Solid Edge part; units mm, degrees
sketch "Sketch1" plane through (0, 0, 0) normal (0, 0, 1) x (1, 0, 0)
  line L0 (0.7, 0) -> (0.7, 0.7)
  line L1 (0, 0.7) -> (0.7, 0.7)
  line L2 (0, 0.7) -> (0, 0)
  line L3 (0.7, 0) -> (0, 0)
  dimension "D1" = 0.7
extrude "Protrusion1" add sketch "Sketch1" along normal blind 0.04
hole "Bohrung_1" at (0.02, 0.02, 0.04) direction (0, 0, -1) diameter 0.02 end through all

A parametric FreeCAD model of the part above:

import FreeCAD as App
import Part
import Sketcher
from FreeCAD import Vector

doc = App.newDocument("Part")
params = doc.addObject("Spreadsheet::Sheet", "Params")
for row, (alias, value) in enumerate([
    ("sketch1_width", "0.7 mm"),
    ("pad1_length", "0.04 mm"),
    ("sketch2_diameter", "0.02 mm"),
    ("hole_diameter", "0.02 mm"),
], start=1):
    params.set(f"A{row}", alias)
    params.set(f"B{row}", "=" + value)
    params.setAlias(f"B{row}", alias)

body = doc.addObject("PartDesign::Body", "Body")

# Sketch on XY plane
sketch1 = body.newObject("Sketcher::SketchObject", "Sketch")
sketch1.AttachmentSupport = (doc.getObject("XY_Plane"), [""])
sketch1.MapMode = "FlatFace"
sketch1.addGeometry(Part.LineSegment(Vector(0, 0, 0), Vector(0.7, 0, 0)), False)
sketch1.addGeometry(Part.LineSegment(Vector(0.7, 0, 0), Vector(0.7, 0.7, 0)), False)
sketch1.addGeometry(Part.LineSegment(Vector(0.7, 0.7, 0), Vector(0, 0.7, 0)), False)
sketch1.addGeometry(Part.LineSegment(Vector(0, 0.7, 0), Vector(0, 0, 0)), False)
sketch1.addConstraint(Sketcher.Constraint("Coincident", 0, 2, 1, 1))
sketch1.addConstraint(Sketcher.Constraint("Coincident", 1, 2, 2, 1))
sketch1.addConstraint(Sketcher.Constraint("Coincident", 2, 2, 3, 1))
sketch1.addConstraint(Sketcher.Constraint("Coincident", 3, 2, 0, 1))
sketch1.addConstraint(Sketcher.Constraint("Horizontal", 0))
sketch1.addConstraint(Sketcher.Constraint("Vertical", 1))
sketch1.addConstraint(Sketcher.Constraint("Horizontal", 2))
sketch1.addConstraint(Sketcher.Constraint("Vertical", 3))
sketch1.addConstraint(Sketcher.Constraint("Coincident", 3, 2, -1, 1))
sketch1.addConstraint(Sketcher.Constraint("Equal", 2, 1))
sketch1.addConstraint(Sketcher.Constraint("DistanceX", 0, 1, 0, 2, 0.7))
sketch1.setExpression("Constraints[10]", "Params.sketch1_width")
pad1 = body.newObject("PartDesign::Pad", "Pad")
pad1.Profile = sketch1
pad1.setExpression("Length", "Params.pad1_length")

# Sketch on XY plane
sketch2 = body.newObject("Sketcher::SketchObject", "Sketch001")
sketch2.AttachmentSupport = (doc.getObject("XY_Plane"), [""])
sketch2.MapMode = "FlatFace"
sketch2.AttachmentOffset = App.Placement(Vector(0, 0, 0.04), App.Rotation())
sketch2.addGeometry(Part.Circle(Vector(0.02, 0.02, 0), Vector(0, 0, 1), 0.01), False)
sketch2.addConstraint(Sketcher.Constraint("Diameter", 0, 0.02))
sketch2.addConstraint(Sketcher.Constraint("DistanceX", -1, 1, 0, 3, 0.02))
sketch2.addConstraint(Sketcher.Constraint("DistanceY", -1, 1, 0, 3, 0.02))
sketch2.setExpression("Constraints[0]", "Params.sketch2_diameter")
doc.recompute()
hole = body.newObject("PartDesign::Hole", "Hole")
hole.Profile = sketch2
hole.ThreadType = "None"
hole.setExpression("Diameter", "Params.hole_diameter")
hole.DepthType = "ThroughAll"

doc.recompute()
